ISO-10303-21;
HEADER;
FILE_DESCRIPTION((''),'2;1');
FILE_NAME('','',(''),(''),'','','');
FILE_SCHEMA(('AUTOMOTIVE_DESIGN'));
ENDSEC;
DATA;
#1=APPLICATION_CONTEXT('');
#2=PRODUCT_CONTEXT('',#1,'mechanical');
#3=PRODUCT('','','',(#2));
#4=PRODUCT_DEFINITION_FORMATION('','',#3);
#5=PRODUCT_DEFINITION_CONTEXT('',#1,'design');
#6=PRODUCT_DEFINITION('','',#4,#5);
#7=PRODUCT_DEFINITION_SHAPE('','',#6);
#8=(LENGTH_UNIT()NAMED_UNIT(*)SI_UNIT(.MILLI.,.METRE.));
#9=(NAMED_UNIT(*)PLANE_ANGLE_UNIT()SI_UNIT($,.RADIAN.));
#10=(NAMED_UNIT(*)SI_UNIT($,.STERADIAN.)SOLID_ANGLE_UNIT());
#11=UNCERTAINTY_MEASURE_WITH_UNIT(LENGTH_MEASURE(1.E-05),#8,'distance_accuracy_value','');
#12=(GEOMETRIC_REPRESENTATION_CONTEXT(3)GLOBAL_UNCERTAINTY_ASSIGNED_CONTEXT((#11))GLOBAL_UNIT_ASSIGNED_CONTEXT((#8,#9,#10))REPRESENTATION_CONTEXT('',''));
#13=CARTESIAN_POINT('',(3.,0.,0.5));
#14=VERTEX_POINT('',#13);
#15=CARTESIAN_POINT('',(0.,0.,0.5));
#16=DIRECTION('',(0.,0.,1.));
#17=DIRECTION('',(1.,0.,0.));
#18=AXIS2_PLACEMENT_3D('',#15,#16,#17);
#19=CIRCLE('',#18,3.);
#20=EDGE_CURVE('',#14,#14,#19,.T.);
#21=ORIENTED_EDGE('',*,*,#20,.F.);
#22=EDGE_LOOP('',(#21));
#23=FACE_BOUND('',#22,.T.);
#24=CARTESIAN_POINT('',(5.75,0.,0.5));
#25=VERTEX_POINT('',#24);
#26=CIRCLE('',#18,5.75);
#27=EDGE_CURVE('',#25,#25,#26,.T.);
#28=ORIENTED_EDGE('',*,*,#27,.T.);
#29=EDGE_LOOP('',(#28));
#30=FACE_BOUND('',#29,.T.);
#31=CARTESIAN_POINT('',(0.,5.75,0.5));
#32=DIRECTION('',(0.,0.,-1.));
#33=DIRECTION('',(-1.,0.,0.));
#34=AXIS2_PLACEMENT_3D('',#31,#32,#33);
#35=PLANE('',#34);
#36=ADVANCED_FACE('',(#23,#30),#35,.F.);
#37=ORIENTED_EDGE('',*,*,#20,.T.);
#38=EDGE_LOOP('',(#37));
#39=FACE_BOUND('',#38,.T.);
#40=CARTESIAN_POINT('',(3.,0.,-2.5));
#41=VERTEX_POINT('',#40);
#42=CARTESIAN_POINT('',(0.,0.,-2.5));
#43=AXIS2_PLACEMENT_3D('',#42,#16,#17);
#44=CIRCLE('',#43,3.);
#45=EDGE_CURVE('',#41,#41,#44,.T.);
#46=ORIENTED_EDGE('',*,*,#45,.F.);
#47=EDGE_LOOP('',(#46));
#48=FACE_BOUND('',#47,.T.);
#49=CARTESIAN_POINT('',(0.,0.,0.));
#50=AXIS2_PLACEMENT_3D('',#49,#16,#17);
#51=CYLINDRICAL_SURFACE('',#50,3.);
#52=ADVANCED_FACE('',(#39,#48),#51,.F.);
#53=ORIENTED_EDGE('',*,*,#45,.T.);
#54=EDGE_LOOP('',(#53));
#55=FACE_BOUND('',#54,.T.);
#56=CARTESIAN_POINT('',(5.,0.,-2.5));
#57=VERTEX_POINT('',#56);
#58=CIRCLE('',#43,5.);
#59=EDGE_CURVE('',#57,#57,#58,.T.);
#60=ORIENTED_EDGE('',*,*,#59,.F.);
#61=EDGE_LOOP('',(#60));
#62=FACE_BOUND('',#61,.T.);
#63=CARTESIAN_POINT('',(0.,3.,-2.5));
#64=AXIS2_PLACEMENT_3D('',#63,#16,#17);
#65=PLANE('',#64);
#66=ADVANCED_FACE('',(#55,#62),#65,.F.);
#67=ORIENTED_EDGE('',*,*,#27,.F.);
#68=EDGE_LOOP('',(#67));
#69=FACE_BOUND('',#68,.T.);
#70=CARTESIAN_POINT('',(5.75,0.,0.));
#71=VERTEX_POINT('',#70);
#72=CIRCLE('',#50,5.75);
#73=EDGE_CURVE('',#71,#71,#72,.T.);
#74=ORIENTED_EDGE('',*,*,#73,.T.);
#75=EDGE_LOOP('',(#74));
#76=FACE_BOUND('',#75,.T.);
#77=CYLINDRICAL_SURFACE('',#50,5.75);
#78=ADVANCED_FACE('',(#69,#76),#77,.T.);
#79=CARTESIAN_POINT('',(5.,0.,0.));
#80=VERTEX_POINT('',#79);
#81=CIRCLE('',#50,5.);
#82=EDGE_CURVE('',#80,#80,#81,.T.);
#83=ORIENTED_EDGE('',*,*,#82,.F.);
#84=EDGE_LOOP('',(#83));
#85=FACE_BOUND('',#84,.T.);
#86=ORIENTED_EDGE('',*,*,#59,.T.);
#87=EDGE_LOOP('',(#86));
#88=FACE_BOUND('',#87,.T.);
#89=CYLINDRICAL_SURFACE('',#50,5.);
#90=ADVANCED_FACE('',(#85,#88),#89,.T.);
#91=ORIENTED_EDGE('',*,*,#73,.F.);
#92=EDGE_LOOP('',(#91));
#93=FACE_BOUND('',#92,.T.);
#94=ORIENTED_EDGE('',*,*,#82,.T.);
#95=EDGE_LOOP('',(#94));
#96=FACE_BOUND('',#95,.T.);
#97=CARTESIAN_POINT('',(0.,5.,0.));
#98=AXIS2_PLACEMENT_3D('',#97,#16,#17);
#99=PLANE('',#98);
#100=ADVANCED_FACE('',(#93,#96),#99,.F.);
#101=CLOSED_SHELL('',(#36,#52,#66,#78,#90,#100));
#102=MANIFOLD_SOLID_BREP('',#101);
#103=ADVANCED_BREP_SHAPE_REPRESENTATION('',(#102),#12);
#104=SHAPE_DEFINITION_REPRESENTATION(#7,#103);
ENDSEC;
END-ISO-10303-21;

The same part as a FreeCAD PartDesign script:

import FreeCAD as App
import Part
import Sketcher
from FreeCAD import Vector
Q = App.Units.Quantity


def add_polygon(sketch, points):
    """Adds a closed chain of lines whose ends are joined by coincident constraints."""
    first, n = sketch.GeometryCount, len(points)
    for a, b in zip(points, points[1:] + points[:1]):
        sketch.addGeometry(Part.LineSegment(App.Vector(*a, 0), App.Vector(*b, 0)), False)
    for i in range(n):
        sketch.addConstraint(Sketcher.Constraint("Coincident", first + i, 2, first + (i + 1) % n, 1))

doc = App.newDocument("Part")
params = doc.addObject("Spreadsheet::Sheet", "Params")
for row, (alias, value) in enumerate([
    ("sketch1_width", "2 mm"),
    ("sketch1_height", "3 mm"),
    ("sketch1_height2", "2.5 mm"),
    ("sketch1_width2", "2.75 mm"),
    ("revolution_angle", "360 deg"),
], start=1):
    params.set(f"A{row}", alias)
    params.set(f"B{row}", "=" + value)
    params.setAlias(f"B{row}", alias)

body = doc.addObject("PartDesign::Body", "Body")

# Sketch on YZ plane
sketch1 = doc.addObject("Sketcher::SketchObject", "Sketch")
body.addObject(sketch1)
sketch1.AttachmentSupport = (doc.YZ_Plane, [""])
sketch1.MapMode = "FlatFace"
add_polygon(sketch1, [(5.8, 0.5), (3, 0.5), (3, -2.5), (5, -2.5), (5, 0), (5.8, 0)])  # lines 0-5
sketch1.addConstraint([
    Sketcher.Constraint("Horizontal", 0),
    Sketcher.Constraint("Vertical", 1),
    Sketcher.Constraint("Horizontal", 2),
    Sketcher.Constraint("Vertical", 3),
    Sketcher.Constraint("Horizontal", 4),
    Sketcher.Constraint("Vertical", 5),
    Sketcher.Constraint("PointOnObject", 3, 2, -1),
    Sketcher.Constraint("DistanceX", 2, 1, 2, 2, Q("2 mm")),
    Sketcher.Constraint("DistanceY", 1, 2, 1, 1, Q("3 mm")),
    Sketcher.Constraint("DistanceY", 3, 1, 3, 2, Q("2.5 mm")),
    Sketcher.Constraint("DistanceX", -1, 1, 0, 2, Q("3 mm")),
    Sketcher.Constraint("DistanceX", 0, 2, 0, 1, Q("2.75 mm")),
])
sketch1.setExpression("Constraints[13]", "Params.sketch1_width")
sketch1.setExpression("Constraints[14]", "Params.sketch1_height")
sketch1.setExpression("Constraints[15]", "Params.sketch1_height2")
sketch1.setExpression("Constraints[17]", "Params.sketch1_width2")
revolution = doc.addObject("PartDesign::Revolution", "Revolution")
body.addObject(revolution)
revolution.Profile = sketch1
revolution.ReferenceAxis = (sketch1, ["V_Axis"])
revolution.setExpression("Angle", "Params.revolution_angle")

doc.recompute()
